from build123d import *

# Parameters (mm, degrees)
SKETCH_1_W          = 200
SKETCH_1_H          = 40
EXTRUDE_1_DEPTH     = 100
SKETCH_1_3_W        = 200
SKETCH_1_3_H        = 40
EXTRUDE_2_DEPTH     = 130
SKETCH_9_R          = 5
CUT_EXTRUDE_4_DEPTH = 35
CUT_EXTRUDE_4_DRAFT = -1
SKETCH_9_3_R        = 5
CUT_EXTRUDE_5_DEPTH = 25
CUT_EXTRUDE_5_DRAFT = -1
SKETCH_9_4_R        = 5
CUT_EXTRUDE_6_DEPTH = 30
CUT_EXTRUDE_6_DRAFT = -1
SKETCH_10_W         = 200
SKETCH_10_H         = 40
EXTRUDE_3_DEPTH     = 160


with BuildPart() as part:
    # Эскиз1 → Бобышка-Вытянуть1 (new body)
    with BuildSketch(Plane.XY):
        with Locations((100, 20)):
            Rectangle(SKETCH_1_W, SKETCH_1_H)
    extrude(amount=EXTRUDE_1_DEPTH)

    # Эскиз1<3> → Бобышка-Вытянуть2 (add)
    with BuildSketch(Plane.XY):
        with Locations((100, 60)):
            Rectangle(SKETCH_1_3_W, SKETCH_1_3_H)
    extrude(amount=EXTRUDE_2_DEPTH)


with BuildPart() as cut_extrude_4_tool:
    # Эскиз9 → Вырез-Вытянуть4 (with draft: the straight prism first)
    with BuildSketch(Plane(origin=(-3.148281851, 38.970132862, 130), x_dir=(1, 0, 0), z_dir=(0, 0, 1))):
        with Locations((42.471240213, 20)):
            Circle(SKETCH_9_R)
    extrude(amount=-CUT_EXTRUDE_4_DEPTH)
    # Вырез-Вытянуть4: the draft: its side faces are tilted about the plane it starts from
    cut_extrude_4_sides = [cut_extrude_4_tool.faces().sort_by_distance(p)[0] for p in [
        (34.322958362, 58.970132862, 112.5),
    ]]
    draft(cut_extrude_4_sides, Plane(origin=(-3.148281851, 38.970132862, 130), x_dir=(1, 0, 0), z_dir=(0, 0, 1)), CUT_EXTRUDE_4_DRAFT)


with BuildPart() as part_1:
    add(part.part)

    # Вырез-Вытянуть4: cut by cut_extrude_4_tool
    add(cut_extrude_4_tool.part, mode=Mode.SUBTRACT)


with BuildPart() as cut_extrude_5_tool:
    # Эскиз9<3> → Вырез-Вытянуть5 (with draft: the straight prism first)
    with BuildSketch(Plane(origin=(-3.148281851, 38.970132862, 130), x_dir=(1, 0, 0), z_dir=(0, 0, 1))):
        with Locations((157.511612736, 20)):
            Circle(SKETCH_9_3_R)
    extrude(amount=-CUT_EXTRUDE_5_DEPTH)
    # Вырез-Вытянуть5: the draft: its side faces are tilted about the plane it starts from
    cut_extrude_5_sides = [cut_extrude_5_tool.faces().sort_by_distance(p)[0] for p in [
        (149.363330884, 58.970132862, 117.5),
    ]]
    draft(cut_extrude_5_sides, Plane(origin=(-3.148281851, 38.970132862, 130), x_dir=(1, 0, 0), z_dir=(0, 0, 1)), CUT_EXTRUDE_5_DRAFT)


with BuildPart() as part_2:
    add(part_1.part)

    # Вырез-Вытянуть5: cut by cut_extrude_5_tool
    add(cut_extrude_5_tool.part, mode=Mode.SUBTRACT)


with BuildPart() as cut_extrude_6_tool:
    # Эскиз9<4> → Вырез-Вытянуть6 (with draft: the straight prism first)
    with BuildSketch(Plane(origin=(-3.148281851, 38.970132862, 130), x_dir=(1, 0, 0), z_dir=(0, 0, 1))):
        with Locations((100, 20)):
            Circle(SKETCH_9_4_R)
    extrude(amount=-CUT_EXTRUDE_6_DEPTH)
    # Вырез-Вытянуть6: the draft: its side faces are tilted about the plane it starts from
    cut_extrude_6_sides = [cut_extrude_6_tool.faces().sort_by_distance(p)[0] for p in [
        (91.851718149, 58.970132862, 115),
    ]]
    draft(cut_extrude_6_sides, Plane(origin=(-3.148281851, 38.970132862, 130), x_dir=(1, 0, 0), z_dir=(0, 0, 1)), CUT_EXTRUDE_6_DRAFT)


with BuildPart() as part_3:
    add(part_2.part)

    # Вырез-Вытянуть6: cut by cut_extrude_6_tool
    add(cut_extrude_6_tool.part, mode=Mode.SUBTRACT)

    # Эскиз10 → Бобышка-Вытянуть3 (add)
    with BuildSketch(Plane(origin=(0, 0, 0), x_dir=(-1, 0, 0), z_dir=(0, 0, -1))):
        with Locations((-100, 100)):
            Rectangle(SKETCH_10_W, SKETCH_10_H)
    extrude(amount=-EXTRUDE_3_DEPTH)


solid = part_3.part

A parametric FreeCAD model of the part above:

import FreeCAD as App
import Part
import Sketcher

V = App.Vector


def faces_at(feature, points):
    """Names of the faces that lie closest to the given points."""
    faces = feature.Shape.Faces
    near = lambda p: min(range(len(faces)), key=lambda i: faces[i].distToShape(Part.Vertex(*p))[0])
    return sorted({f"Face{near(p) + 1}" for p in points})

doc = App.newDocument("Part")
body = doc.addObject("PartDesign::Body", "Body")

sketch1 = body.newObject("Sketcher::SketchObject", "Sketch")
sketch1.AttachmentSupport = (doc.getObject("XY_Plane"), [""])
sketch1.MapMode = "FlatFace"
sketch1.addGeometry([
    Part.LineSegment(V(0, 40, 0), V(0, 0, 0)),
    Part.LineSegment(V(0, 0, 0), V(200, 0, 0)),
    Part.LineSegment(V(200, 0, 0), V(200, 40, 0)),
    Part.LineSegment(V(200, 40, 0), V(0, 40, 0)),
], False)
sketch1.addConstraint([
    Sketcher.Constraint("Coincident", 0, 2, 1, 1),
    Sketcher.Constraint("Coincident", 1, 2, 2, 1),
    Sketcher.Constraint("Coincident", 2, 2, 3, 1),
    Sketcher.Constraint("Coincident", 3, 2, 0, 1),
    Sketcher.Constraint("Vertical", 0),
    Sketcher.Constraint("Horizontal", 1),
    Sketcher.Constraint("Vertical", 2),
    Sketcher.Constraint("Horizontal", 3),
    Sketcher.Constraint("Coincident", 0, 2, -1, 1),
    Sketcher.Constraint("DistanceX", 1, 1, 1, 2, 200.0),
    Sketcher.Constraint("DistanceY", 0, 2, 0, 1, 40.0),
])
pad1 = body.newObject("PartDesign::Pad", "Pad")
pad1.Profile = sketch1
pad1.Length = 100

sketch2 = body.newObject("Sketcher::SketchObject", "Sketch001")
sketch2.AttachmentSupport = (doc.getObject("XY_Plane"), [""])
sketch2.MapMode = "FlatFace"
sketch2.addGeometry([
    Part.LineSegment(V(0, 80, 0), V(0, 40, 0)),
    Part.LineSegment(V(0, 40, 0), V(200, 40, 0)),
    Part.LineSegment(V(200, 40, 0), V(200, 80, 0)),
    Part.LineSegment(V(200, 80, 0), V(0, 80, 0)),
], False)
sketch2.addConstraint([
    Sketcher.Constraint("Coincident", 0, 2, 1, 1),
    Sketcher.Constraint("Coincident", 1, 2, 2, 1),
    Sketcher.Constraint("Coincident", 2, 2, 3, 1),
    Sketcher.Constraint("Coincident", 3, 2, 0, 1),
    Sketcher.Constraint("Vertical", 0),
    Sketcher.Constraint("Horizontal", 1),
    Sketcher.Constraint("Vertical", 2),
    Sketcher.Constraint("Horizontal", 3),
    Sketcher.Constraint("PointOnObject", 0, 2, -2),
    Sketcher.Constraint("DistanceX", 1, 1, 1, 2, 200.0),
    Sketcher.Constraint("DistanceY", 0, 2, 0, 1, 40.0),
    Sketcher.Constraint("DistanceY", -1, 1, 0, 2, 40.0),
])
pad2 = body.newObject("PartDesign::Pad", "Pad001")
pad2.Profile = sketch2
pad2.Length = 130
body2 = doc.addObject("PartDesign::Body", "Body001")

sketch3 = body2.newObject("Sketcher::SketchObject", "Sketch002")
sketch3.AttachmentSupport = (doc.getObject("XY_Plane001"), [""])
sketch3.MapMode = "FlatFace"
sketch3.AttachmentOffset = App.Placement(V(0, 0, 130), App.Rotation())
sketch3.addGeometry(Part.Circle(V(39, 59, 0), V(0, 0, 1), 5), False)
sketch3.addConstraint([
    Sketcher.Constraint("Diameter", 0, 10.0),
    Sketcher.Constraint("DistanceX", -1, 1, 0, 3, 39.322958),
    Sketcher.Constraint("DistanceY", -1, 1, 0, 3, 58.970133),
])
pad3 = body2.newObject("PartDesign::Pad", "Pad002")
pad3.Profile = sketch3
pad3.Length = 35
pad3.Reversed = True
doc.recompute()

datumplane = body2.newObject("PartDesign::Plane", "DatumPlane")
datumplane.AttachmentSupport = (doc.getObject("XY_Plane001"), [""])
datumplane.MapMode = "FlatFace"
datumplane.AttachmentOffset = App.Placement(V(0, 0, 130), App.Rotation())
draft = body2.newObject("PartDesign::Draft", "Draft")
draft.Base = (pad3, faces_at(pad3, [(34.323, 58.97, 112.5)]))
draft.NeutralPlane = (datumplane, [""])
draft.Angle = 1
draft.Reversed = True
doc.recompute()

boolean = body.newObject("PartDesign::Boolean", "Boolean")
boolean.Type = "Cut"
boolean.addObjects([body2])
body3 = doc.addObject("PartDesign::Body", "Body002")

sketch4 = body3.newObject("Sketcher::SketchObject", "Sketch003")
sketch4.AttachmentSupport = (doc.getObject("XY_Plane002"), [""])
sketch4.MapMode = "FlatFace"
sketch4.AttachmentOffset = App.Placement(V(0, 0, 130), App.Rotation())
sketch4.addGeometry(Part.Circle(V(154, 59, 0), V(0, 0, 1), 5), False)
sketch4.addConstraint([
    Sketcher.Constraint("Diameter", 0, 10.0),
    Sketcher.Constraint("DistanceX", -1, 1, 0, 3, 154.363331),
    Sketcher.Constraint("DistanceY", -1, 1, 0, 3, 58.970133),
])
pad4 = body3.newObject("PartDesign::Pad", "Pad003")
pad4.Profile = sketch4
pad4.Length = 25
pad4.Reversed = True
doc.recompute()

datumplane2 = body3.newObject("PartDesign::Plane", "DatumPlane001")
datumplane2.AttachmentSupport = (doc.getObject("XY_Plane002"), [""])
datumplane2.MapMode = "FlatFace"
datumplane2.AttachmentOffset = App.Placement(V(0, 0, 130), App.Rotation())
draft2 = body3.newObject("PartDesign::Draft", "Draft001")
draft2.Base = (pad4, faces_at(pad4, [(149.363, 58.97, 117.5)]))
draft2.NeutralPlane = (datumplane2, [""])
draft2.Angle = 1
draft2.Reversed = True
doc.recompute()

boolean2 = body.newObject("PartDesign::Boolean", "Boolean001")
boolean2.Type = "Cut"
boolean2.addObjects([body3])
body4 = doc.addObject("PartDesign::Body", "Body003")

sketch5 = body4.newObject("Sketcher::SketchObject", "Sketch004")
sketch5.AttachmentSupport = (doc.getObject("XY_Plane003"), [""])
sketch5.MapMode = "FlatFace"
sketch5.AttachmentOffset = App.Placement(V(0, 0, 130), App.Rotation())
sketch5.addGeometry(Part.Circle(V(97, 59, 0), V(0, 0, 1), 5), False)
sketch5.addConstraint([
    Sketcher.Constraint("Diameter", 0, 10.0),
    Sketcher.Constraint("DistanceX", -1, 1, 0, 3, 96.851718),
    Sketcher.Constraint("DistanceY", -1, 1, 0, 3, 58.970133),
])
pad5 = body4.newObject("PartDesign::Pad", "Pad004")
pad5.Profile = sketch5
pad5.Length = 30
pad5.Reversed = True
doc.recompute()

datumplane3 = body4.newObject("PartDesign::Plane", "DatumPlane002")
datumplane3.AttachmentSupport = (doc.getObject("XY_Plane003"), [""])
datumplane3.MapMode = "FlatFace"
datumplane3.AttachmentOffset = App.Placement(V(0, 0, 130), App.Rotation())
draft3 = body4.newObject("PartDesign::Draft", "Draft002")
draft3.Base = (pad5, faces_at(pad5, [(91.852, 58.97, 115)]))
draft3.NeutralPlane = (datumplane3, [""])
draft3.Angle = 1
draft3.Reversed = True
doc.recompute()

boolean3 = body.newObject("PartDesign::Boolean", "Boolean002")
boolean3.Type = "Cut"
boolean3.addObjects([body4])

sketch6 = body.newObject("Sketcher::SketchObject", "Sketch005")
sketch6.AttachmentSupport = (doc.getObject("XY_Plane"), [""])
sketch6.MapMode = "FlatFace"
sketch6.addGeometry([
    Part.LineSegment(V(200, 120, 0), V(200, 80, 0)),
    Part.LineSegment(V(200, 80, 0), V(0, 80, 0)),
    Part.LineSegment(V(0, 80, 0), V(0, 120, 0)),
    Part.LineSegment(V(0, 120, 0), V(200, 120, 0)),
], False)
sketch6.addConstraint([
    Sketcher.Constraint("Coincident", 0, 2, 1, 1),
    Sketcher.Constraint("Coincident", 1, 2, 2, 1),
    Sketcher.Constraint("Coincident", 2, 2, 3, 1),
    Sketcher.Constraint("Coincident", 3, 2, 0, 1),
    Sketcher.Constraint("Vertical", 0),
    Sketcher.Constraint("Horizontal", 1),
    Sketcher.Constraint("Vertical", 2),
    Sketcher.Constraint("Horizontal", 3),
    Sketcher.Constraint("PointOnObject", 1, 2, -2),
    Sketcher.Constraint("DistanceX", 1, 2, 1, 1, 200.0),
    Sketcher.Constraint("DistanceY", 0, 2, 0, 1, 40.0),
    Sketcher.Constraint("DistanceY", -1, 1, 0, 2, 80.0),
])
pad6 = body.newObject("PartDesign::Pad", "Pad005")
pad6.Profile = sketch6
pad6.Length = 160

doc.recompute()
